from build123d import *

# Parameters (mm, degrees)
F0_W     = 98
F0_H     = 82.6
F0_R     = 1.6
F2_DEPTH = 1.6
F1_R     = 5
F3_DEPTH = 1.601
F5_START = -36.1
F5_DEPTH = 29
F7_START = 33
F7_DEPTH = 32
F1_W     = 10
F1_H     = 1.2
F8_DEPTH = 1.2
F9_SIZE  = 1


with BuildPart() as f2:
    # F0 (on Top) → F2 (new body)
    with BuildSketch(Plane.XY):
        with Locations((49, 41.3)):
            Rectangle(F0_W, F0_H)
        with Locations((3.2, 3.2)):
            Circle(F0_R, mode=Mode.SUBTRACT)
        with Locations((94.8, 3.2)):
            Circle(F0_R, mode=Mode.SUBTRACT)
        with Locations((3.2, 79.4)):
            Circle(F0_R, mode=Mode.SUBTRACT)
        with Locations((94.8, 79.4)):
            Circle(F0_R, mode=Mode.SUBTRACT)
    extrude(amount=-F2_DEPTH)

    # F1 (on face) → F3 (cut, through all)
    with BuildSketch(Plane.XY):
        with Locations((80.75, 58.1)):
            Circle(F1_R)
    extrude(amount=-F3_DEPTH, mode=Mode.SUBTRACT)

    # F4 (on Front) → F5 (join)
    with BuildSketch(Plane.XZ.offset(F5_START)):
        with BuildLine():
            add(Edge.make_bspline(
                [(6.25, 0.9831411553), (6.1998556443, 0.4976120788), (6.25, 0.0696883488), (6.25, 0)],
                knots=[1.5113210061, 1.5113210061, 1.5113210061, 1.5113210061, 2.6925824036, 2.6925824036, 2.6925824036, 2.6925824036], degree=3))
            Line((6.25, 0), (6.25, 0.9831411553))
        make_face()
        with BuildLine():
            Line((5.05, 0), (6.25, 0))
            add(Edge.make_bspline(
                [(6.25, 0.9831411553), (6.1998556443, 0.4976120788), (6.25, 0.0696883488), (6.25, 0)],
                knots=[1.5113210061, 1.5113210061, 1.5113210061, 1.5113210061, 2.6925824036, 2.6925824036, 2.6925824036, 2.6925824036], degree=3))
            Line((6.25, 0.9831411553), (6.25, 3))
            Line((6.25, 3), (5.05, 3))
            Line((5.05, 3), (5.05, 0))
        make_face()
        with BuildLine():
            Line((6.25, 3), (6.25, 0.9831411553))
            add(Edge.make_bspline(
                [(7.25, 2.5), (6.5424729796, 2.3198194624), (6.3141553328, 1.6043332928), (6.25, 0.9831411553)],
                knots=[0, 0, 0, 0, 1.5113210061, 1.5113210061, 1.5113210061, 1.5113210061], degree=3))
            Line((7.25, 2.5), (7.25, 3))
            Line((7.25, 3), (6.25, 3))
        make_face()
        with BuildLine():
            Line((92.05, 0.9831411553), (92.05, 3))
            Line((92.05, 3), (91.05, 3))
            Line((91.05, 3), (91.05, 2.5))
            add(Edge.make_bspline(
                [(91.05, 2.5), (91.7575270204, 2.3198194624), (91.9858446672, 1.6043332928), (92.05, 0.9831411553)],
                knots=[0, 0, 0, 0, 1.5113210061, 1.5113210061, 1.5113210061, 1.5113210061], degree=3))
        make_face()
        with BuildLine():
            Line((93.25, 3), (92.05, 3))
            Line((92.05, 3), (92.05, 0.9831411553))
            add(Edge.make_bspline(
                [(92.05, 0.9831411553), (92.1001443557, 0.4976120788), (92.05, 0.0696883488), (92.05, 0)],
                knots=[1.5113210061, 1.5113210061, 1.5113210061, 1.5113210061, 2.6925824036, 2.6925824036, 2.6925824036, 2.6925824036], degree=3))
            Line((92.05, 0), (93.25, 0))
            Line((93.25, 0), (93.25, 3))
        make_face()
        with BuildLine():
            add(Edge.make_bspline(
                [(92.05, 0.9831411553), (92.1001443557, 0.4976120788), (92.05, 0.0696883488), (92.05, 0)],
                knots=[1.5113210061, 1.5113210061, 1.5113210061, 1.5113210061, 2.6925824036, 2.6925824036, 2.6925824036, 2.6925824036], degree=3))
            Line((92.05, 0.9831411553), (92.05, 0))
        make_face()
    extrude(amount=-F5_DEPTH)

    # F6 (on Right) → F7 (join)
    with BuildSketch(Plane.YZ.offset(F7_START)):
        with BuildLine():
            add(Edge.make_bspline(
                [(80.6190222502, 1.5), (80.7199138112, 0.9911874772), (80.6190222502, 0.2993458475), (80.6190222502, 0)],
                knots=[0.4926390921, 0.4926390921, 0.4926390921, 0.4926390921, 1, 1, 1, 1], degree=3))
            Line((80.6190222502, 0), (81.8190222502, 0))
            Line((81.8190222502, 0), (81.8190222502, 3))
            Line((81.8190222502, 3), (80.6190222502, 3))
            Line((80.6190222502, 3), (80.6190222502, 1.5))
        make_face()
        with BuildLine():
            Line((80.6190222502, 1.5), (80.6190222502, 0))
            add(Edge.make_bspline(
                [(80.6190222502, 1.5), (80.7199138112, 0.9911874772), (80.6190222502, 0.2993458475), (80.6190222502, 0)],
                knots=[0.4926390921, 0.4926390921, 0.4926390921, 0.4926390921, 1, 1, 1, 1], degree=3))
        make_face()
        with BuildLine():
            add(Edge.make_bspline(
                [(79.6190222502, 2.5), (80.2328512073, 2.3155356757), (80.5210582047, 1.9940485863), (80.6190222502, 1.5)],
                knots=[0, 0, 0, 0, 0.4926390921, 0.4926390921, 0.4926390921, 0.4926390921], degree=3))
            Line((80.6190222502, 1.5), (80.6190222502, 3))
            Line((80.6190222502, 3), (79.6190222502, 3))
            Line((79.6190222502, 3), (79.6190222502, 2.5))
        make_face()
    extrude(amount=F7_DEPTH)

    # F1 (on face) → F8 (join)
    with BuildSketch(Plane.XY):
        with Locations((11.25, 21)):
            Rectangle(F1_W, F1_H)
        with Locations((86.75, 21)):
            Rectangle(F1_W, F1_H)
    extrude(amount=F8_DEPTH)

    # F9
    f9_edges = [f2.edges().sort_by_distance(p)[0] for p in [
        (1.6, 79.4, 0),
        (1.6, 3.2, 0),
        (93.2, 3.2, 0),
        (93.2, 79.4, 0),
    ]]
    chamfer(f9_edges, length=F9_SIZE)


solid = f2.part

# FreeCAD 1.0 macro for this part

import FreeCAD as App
import Part
import Sketcher

V = App.Vector
Q = App.Units.Quantity


def edges_at(feature, points):
    """Names of the edges that pass closest to the given points."""
    edges = feature.Shape.Edges
    near = lambda p: min(range(len(edges)), key=lambda i: edges[i].distToShape(Part.Vertex(*p))[0])
    return sorted({f"Edge{near(p) + 1}" for p in points})

doc = App.newDocument("Part")
body = doc.addObject("PartDesign::Body", "Body")

sketch1 = body.newObject("Sketcher::SketchObject", "Sketch")
sketch1.AttachmentSupport = (doc.getObject("XY_Plane"), [""])
sketch1.MapMode = "FlatFace"
sketch1.addGeometry(Part.LineSegment(V(0, 82.6, 0), V(0, 0, 0)), False)
sketch1.addGeometry(Part.LineSegment(V(0, 0, 0), V(98, 0, 0)), False)
sketch1.addGeometry(Part.LineSegment(V(98, 0, 0), V(98, 82.6, 0)), False)
sketch1.addGeometry(Part.LineSegment(V(98, 82.6, 0), V(0, 82.6, 0)), False)
sketch1.addGeometry(Part.Circle(V(3.2, 3.2, 0), V(0, 0, 1), 1.6), False)
sketch1.addGeometry(Part.Circle(V(94.8, 3.2, 0), V(0, 0, 1), 1.6), False)
sketch1.addGeometry(Part.Circle(V(3.2, 79.4, 0), V(0, 0, 1), 1.6), False)
sketch1.addGeometry(Part.Circle(V(94.8, 79.4, 0), V(0, 0, 1), 1.6), False)
sketch1.addConstraint(Sketcher.Constraint("Coincident", 0, 2, 1, 1))
sketch1.addConstraint(Sketcher.Constraint("Coincident", 1, 2, 2, 1))
sketch1.addConstraint(Sketcher.Constraint("Coincident", 2, 2, 3, 1))
sketch1.addConstraint(Sketcher.Constraint("Coincident", 3, 2, 0, 1))
sketch1.addConstraint(Sketcher.Constraint("Vertical", 0))
sketch1.addConstraint(Sketcher.Constraint("Horizontal", 1))
sketch1.addConstraint(Sketcher.Constraint("Vertical", 2))
sketch1.addConstraint(Sketcher.Constraint("Horizontal", 3))
sketch1.addConstraint(Sketcher.Constraint("Coincident", 0, 2, -1, 1))
sketch1.addConstraint(Sketcher.Constraint("Equal", 4, 5))
sketch1.addConstraint(Sketcher.Constraint("Equal", 5, 6))
sketch1.addConstraint(Sketcher.Constraint("Equal", 6, 7))
sketch1.addConstraint(Sketcher.Constraint("Horizontal", 4, 3, 5, 3))
sketch1.addConstraint(Sketcher.Constraint("Horizontal", 6, 3, 7, 3))
sketch1.addConstraint(Sketcher.Constraint("Vertical", 4, 3, 6, 3))
sketch1.addConstraint(Sketcher.Constraint("Vertical", 5, 3, 7, 3))
sketch1.addConstraint(Sketcher.Constraint("Diameter", 4, Q("3.2 mm")))
sketch1.addConstraint(Sketcher.Constraint("DistanceX", 1, 1, 1, 2, Q("98 mm")))
sketch1.addConstraint(Sketcher.Constraint("DistanceY", 0, 2, 0, 1, Q("82.6 mm")))
sketch1.addConstraint(Sketcher.Constraint("DistanceX", -1, 1, 4, 3, Q("3.2 mm")))
sketch1.addConstraint(Sketcher.Constraint("DistanceY", -1, 1, 4, 3, Q("3.2 mm")))
sketch1.addConstraint(Sketcher.Constraint("DistanceX", -1, 1, 5, 3, Q("94.8 mm")))
sketch1.addConstraint(Sketcher.Constraint("DistanceY", -1, 1, 6, 3, Q("79.4 mm")))
pad1 = body.newObject("PartDesign::Pad", "Pad")
pad1.Profile = sketch1
pad1.Length = 1.6
pad1.Reversed = True

sketch2 = body.newObject("Sketcher::SketchObject", "Sketch001")
sketch2.AttachmentSupport = (doc.getObject("XY_Plane"), [""])
sketch2.MapMode = "FlatFace"
sketch2.addGeometry(Part.Circle(V(81, 58, 0), V(0, 0, 1), 5), False)
sketch2.addConstraint(Sketcher.Constraint("Diameter", 0, Q("10 mm")))
sketch2.addConstraint(Sketcher.Constraint("DistanceY", -1, 1, 0, 3, Q("58.1 mm")))
sketch2.addConstraint(Sketcher.Constraint("DistanceX", -1, 1, 0, 3, Q("80.75 mm")))
pocket1 = body.newObject("PartDesign::Pocket", "Pocket")
pocket1.Profile = sketch2
pocket1.Type = "ThroughAll"

sketch3 = body.newObject("Sketcher::SketchObject", "Sketch002")
sketch3.AttachmentSupport = (doc.getObject("XZ_Plane"), [""])
sketch3.MapMode = "FlatFace"
sketch3.AttachmentOffset = App.Placement(V(0, 0, -36.1), App.Rotation())
sketch3.addGeometry(Part.LineSegment(V(6.25, 0, 0), V(6.25, 0.983141, 0)), False)
sketch3.addGeometry(Part.BSplineCurve([V(7.25, 2.5, 0), V(6.542473, 2.319819, 0), V(6.314155, 1.604333, 0), V(6.25, 0.983141, 0)], [4, 4], [0, 1.511321006], False, 3, [1, 1, 1, 1], False), False)
sketch3.addGeometry(Part.LineSegment(V(7.25, 2.5, 0), V(7.25, 3, 0)), False)
sketch3.addGeometry(Part.LineSegment(V(7.25, 3, 0), V(5.05, 3, 0)), False)
sketch3.addGeometry(Part.LineSegment(V(5.05, 3, 0), V(5.05, 0, 0)), False)
sketch3.addGeometry(Part.LineSegment(V(5.05, 0, 0), V(6.25, 0, 0)), False)
sketch3.addGeometry(Part.LineSegment(V(91.05, 3, 0), V(91.05, 2.5, 0)), False)
sketch3.addGeometry(Part.BSplineCurve([V(91.05, 2.5, 0), V(91.757527, 2.319819, 0), V(91.985845, 1.604333, 0), V(92.05, 0.983141, 0)], [4, 4], [0, 1.511321006], False, 3, [1, 1, 1, 1], False), False)
sketch3.addGeometry(Part.LineSegment(V(92.05, 0.983141, 0), V(92.05, 0, 0)), False)
sketch3.addGeometry(Part.LineSegment(V(92.05, 0, 0), V(93.25, 0, 0)), False)
sketch3.addGeometry(Part.LineSegment(V(93.25, 0, 0), V(93.25, 3, 0)), False)
sketch3.addGeometry(Part.LineSegment(V(93.25, 3, 0), V(91.05, 3, 0)), False)
sketch3.addConstraint(Sketcher.Constraint("Block", 1))
sketch3.addConstraint(Sketcher.Constraint("Block", 7))
sketch3.addConstraint(Sketcher.Constraint("Coincident", 0, 2, 1, 2))
sketch3.addConstraint(Sketcher.Constraint("Coincident", 1, 1, 2, 1))
sketch3.addConstraint(Sketcher.Constraint("Coincident", 2, 2, 3, 1))
sketch3.addConstraint(Sketcher.Constraint("Coincident", 3, 2, 4, 1))
sketch3.addConstraint(Sketcher.Constraint("Coincident", 4, 2, 5, 1))
sketch3.addConstraint(Sketcher.Constraint("Coincident", 5, 2, 0, 1))
sketch3.addConstraint(Sketcher.Constraint("Coincident", 6, 2, 7, 1))
sketch3.addConstraint(Sketcher.Constraint("Coincident", 7, 2, 8, 1))
sketch3.addConstraint(Sketcher.Constraint("Coincident", 8, 2, 9, 1))
sketch3.addConstraint(Sketcher.Constraint("Coincident", 9, 2, 10, 1))
sketch3.addConstraint(Sketcher.Constraint("Coincident", 10, 2, 11, 1))
sketch3.addConstraint(Sketcher.Constraint("Coincident", 11, 2, 6, 1))
sketch3.addConstraint(Sketcher.Constraint("Vertical", 0))
sketch3.addConstraint(Sketcher.Constraint("Vertical", 2))
sketch3.addConstraint(Sketcher.Constraint("Horizontal", 3))
sketch3.addConstraint(Sketcher.Constraint("Vertical", 4))
sketch3.addConstraint(Sketcher.Constraint("Horizontal", 5))
sketch3.addConstraint(Sketcher.Constraint("Vertical", 6))
sketch3.addConstraint(Sketcher.Constraint("Vertical", 8))
sketch3.addConstraint(Sketcher.Constraint("Horizontal", 9))
sketch3.addConstraint(Sketcher.Constraint("Vertical", 10))
sketch3.addConstraint(Sketcher.Constraint("Horizontal", 11))
sketch3.addConstraint(Sketcher.Constraint("PointOnObject", 4, 2, -1))
sketch3.addConstraint(Sketcher.Constraint("PointOnObject", 8, 2, -1))
sketch3.addConstraint(Sketcher.Constraint("Horizontal", 3, 2, 10, 2))
sketch3.addConstraint(Sketcher.Constraint("Equal", 5, 9))
sketch3.addConstraint(Sketcher.Constraint("DistanceY", 4, 2, 4, 1, Q("3 mm")))
sketch3.addConstraint(Sketcher.Constraint("DistanceX", 3, 2, 3, 1, Q("2.2 mm")))
pad2 = body.newObject("PartDesign::Pad", "Pad001")
pad2.Profile = sketch3
pad2.Length = 29
pad2.Reversed = True

sketch4 = body.newObject("Sketcher::SketchObject", "Sketch003")
sketch4.AttachmentSupport = (doc.getObject("YZ_Plane"), [""])
sketch4.MapMode = "FlatFace"
sketch4.AttachmentOffset = App.Placement(V(0, 0, 33), App.Rotation())
sketch4.addGeometry(Part.LineSegment(V(80.619022, 0, 0), V(81.819022, 0, 0)), False)
sketch4.addGeometry(Part.LineSegment(V(81.819022, 0, 0), V(81.819022, 3, 0)), False)
sketch4.addGeometry(Part.LineSegment(V(81.819022, 3, 0), V(79.619022, 3, 0)), False)
sketch4.addGeometry(Part.LineSegment(V(79.619022, 3, 0), V(79.619022, 2.5, 0)), False)
sketch4.addGeometry(Part.BSplineCurve([V(79.619022, 2.5, 0), V(80.232851, 2.315536, 0), V(80.521058, 1.994049, 0), V(80.619022, 1.5, 0)], [4, 4], [0, 0.492639092], False, 3, [1, 1, 1, 1], False), False)
sketch4.addGeometry(Part.LineSegment(V(80.619022, 1.5, 0), V(80.619022, 0, 0)), False)
sketch4.addConstraint(Sketcher.Constraint("Block", 4))
sketch4.addConstraint(Sketcher.Constraint("Coincident", 0, 2, 1, 1))
sketch4.addConstraint(Sketcher.Constraint("Coincident", 1, 2, 2, 1))
sketch4.addConstraint(Sketcher.Constraint("Coincident", 2, 2, 3, 1))
sketch4.addConstraint(Sketcher.Constraint("Coincident", 3, 2, 4, 1))
sketch4.addConstraint(Sketcher.Constraint("Coincident", 4, 2, 5, 1))
sketch4.addConstraint(Sketcher.Constraint("Coincident", 5, 2, 0, 1))
sketch4.addConstraint(Sketcher.Constraint("Horizontal", 0))
sketch4.addConstraint(Sketcher.Constraint("Vertical", 1))
sketch4.addConstraint(Sketcher.Constraint("Horizontal", 2))
sketch4.addConstraint(Sketcher.Constraint("Vertical", 3))
sketch4.addConstraint(Sketcher.Constraint("Vertical", 5))
sketch4.addConstraint(Sketcher.Constraint("PointOnObject", 0, 2, -1))
sketch4.addConstraint(Sketcher.Constraint("DistanceY", 1, 1, 1, 2, Q("3 mm")))
sketch4.addConstraint(Sketcher.Constraint("DistanceX", 0, 1, 0, 2, Q("1.2 mm")))
pad3 = body.newObject("PartDesign::Pad", "Pad002")
pad3.Profile = sketch4
pad3.Length = 32

sketch5 = body.newObject("Sketcher::SketchObject", "Sketch004")
sketch5.AttachmentSupport = (doc.getObject("XY_Plane"), [""])
sketch5.MapMode = "FlatFace"
sketch5.addGeometry(Part.LineSegment(V(6.2, 21.6, 0), V(6.2, 20.4, 0)), False)
sketch5.addGeometry(Part.LineSegment(V(6.2, 20.4, 0), V(16.2, 20.4, 0)), False)
sketch5.addGeometry(Part.LineSegment(V(16.2, 20.4, 0), V(16.2, 21.6, 0)), False)
sketch5.addGeometry(Part.LineSegment(V(16.2, 21.6, 0), V(6.2, 21.6, 0)), False)
sketch5.addGeometry(Part.LineSegment(V(81.8, 21.6, 0), V(81.8, 20.4, 0)), False)
sketch5.addGeometry(Part.LineSegment(V(81.8, 20.4, 0), V(91.8, 20.4, 0)), False)
sketch5.addGeometry(Part.LineSegment(V(91.8, 20.4, 0), V(91.8, 21.6, 0)), False)
sketch5.addGeometry(Part.LineSegment(V(91.8, 21.6, 0), V(81.8, 21.6, 0)), False)
sketch5.addConstraint(Sketcher.Constraint("Coincident", 0, 2, 1, 1))
sketch5.addConstraint(Sketcher.Constraint("Coincident", 1, 2, 2, 1))
sketch5.addConstraint(Sketcher.Constraint("Coincident", 2, 2, 3, 1))
sketch5.addConstraint(Sketcher.Constraint("Coincident", 3, 2, 0, 1))
sketch5.addConstraint(Sketcher.Constraint("Coincident", 4, 2, 5, 1))
sketch5.addConstraint(Sketcher.Constraint("Coincident", 5, 2, 6, 1))
sketch5.addConstraint(Sketcher.Constraint("Coincident", 6, 2, 7, 1))
sketch5.addConstraint(Sketcher.Constraint("Coincident", 7, 2, 4, 1))
sketch5.addConstraint(Sketcher.Constraint("Vertical", 0))
sketch5.addConstraint(Sketcher.Constraint("Horizontal", 1))
sketch5.addConstraint(Sketcher.Constraint("Vertical", 2))
sketch5.addConstraint(Sketcher.Constraint("Horizontal", 3))
sketch5.addConstraint(Sketcher.Constraint("Vertical", 4))
sketch5.addConstraint(Sketcher.Constraint("Horizontal", 5))
sketch5.addConstraint(Sketcher.Constraint("Vertical", 6))
sketch5.addConstraint(Sketcher.Constraint("Horizontal", 7))
sketch5.addConstraint(Sketcher.Constraint("Horizontal", 1, 2, 4, 2))
sketch5.addConstraint(Sketcher.Constraint("Horizontal", 3, 2, 6, 2))
sketch5.addConstraint(Sketcher.Constraint("Equal", 3, 5))
sketch5.addConstraint(Sketcher.Constraint("DistanceX", 1, 1, 1, 2, Q("10 mm")))
sketch5.addConstraint(Sketcher.Constraint("DistanceY", 0, 2, 0, 1, Q("1.2 mm")))
sketch5.addConstraint(Sketcher.Constraint("DistanceY", -1, 1, 0, 2, Q("20.4 mm")))
sketch5.addConstraint(Sketcher.Constraint("DistanceX", 1, 2, 4, 2, Q("65.5 mm")))
sketch5.addConstraint(Sketcher.Constraint("DistanceX", -1, 1, 0, 2, Q("6.25 mm")))
pad4 = body.newObject("PartDesign::Pad", "Pad003")
pad4.Profile = sketch5
pad4.Length = 1.2
doc.recompute()

chamfer = body.newObject("PartDesign::Chamfer", "Chamfer")
chamfer.Base = (pad4, edges_at(pad4, [
    (1.6, 79.4, 0),
    (1.6, 3.2, 0),
    (93.2, 3.2, 0),
    (93.2, 79.4, 0),
]))
chamfer.Size = 1

doc.recompute()
